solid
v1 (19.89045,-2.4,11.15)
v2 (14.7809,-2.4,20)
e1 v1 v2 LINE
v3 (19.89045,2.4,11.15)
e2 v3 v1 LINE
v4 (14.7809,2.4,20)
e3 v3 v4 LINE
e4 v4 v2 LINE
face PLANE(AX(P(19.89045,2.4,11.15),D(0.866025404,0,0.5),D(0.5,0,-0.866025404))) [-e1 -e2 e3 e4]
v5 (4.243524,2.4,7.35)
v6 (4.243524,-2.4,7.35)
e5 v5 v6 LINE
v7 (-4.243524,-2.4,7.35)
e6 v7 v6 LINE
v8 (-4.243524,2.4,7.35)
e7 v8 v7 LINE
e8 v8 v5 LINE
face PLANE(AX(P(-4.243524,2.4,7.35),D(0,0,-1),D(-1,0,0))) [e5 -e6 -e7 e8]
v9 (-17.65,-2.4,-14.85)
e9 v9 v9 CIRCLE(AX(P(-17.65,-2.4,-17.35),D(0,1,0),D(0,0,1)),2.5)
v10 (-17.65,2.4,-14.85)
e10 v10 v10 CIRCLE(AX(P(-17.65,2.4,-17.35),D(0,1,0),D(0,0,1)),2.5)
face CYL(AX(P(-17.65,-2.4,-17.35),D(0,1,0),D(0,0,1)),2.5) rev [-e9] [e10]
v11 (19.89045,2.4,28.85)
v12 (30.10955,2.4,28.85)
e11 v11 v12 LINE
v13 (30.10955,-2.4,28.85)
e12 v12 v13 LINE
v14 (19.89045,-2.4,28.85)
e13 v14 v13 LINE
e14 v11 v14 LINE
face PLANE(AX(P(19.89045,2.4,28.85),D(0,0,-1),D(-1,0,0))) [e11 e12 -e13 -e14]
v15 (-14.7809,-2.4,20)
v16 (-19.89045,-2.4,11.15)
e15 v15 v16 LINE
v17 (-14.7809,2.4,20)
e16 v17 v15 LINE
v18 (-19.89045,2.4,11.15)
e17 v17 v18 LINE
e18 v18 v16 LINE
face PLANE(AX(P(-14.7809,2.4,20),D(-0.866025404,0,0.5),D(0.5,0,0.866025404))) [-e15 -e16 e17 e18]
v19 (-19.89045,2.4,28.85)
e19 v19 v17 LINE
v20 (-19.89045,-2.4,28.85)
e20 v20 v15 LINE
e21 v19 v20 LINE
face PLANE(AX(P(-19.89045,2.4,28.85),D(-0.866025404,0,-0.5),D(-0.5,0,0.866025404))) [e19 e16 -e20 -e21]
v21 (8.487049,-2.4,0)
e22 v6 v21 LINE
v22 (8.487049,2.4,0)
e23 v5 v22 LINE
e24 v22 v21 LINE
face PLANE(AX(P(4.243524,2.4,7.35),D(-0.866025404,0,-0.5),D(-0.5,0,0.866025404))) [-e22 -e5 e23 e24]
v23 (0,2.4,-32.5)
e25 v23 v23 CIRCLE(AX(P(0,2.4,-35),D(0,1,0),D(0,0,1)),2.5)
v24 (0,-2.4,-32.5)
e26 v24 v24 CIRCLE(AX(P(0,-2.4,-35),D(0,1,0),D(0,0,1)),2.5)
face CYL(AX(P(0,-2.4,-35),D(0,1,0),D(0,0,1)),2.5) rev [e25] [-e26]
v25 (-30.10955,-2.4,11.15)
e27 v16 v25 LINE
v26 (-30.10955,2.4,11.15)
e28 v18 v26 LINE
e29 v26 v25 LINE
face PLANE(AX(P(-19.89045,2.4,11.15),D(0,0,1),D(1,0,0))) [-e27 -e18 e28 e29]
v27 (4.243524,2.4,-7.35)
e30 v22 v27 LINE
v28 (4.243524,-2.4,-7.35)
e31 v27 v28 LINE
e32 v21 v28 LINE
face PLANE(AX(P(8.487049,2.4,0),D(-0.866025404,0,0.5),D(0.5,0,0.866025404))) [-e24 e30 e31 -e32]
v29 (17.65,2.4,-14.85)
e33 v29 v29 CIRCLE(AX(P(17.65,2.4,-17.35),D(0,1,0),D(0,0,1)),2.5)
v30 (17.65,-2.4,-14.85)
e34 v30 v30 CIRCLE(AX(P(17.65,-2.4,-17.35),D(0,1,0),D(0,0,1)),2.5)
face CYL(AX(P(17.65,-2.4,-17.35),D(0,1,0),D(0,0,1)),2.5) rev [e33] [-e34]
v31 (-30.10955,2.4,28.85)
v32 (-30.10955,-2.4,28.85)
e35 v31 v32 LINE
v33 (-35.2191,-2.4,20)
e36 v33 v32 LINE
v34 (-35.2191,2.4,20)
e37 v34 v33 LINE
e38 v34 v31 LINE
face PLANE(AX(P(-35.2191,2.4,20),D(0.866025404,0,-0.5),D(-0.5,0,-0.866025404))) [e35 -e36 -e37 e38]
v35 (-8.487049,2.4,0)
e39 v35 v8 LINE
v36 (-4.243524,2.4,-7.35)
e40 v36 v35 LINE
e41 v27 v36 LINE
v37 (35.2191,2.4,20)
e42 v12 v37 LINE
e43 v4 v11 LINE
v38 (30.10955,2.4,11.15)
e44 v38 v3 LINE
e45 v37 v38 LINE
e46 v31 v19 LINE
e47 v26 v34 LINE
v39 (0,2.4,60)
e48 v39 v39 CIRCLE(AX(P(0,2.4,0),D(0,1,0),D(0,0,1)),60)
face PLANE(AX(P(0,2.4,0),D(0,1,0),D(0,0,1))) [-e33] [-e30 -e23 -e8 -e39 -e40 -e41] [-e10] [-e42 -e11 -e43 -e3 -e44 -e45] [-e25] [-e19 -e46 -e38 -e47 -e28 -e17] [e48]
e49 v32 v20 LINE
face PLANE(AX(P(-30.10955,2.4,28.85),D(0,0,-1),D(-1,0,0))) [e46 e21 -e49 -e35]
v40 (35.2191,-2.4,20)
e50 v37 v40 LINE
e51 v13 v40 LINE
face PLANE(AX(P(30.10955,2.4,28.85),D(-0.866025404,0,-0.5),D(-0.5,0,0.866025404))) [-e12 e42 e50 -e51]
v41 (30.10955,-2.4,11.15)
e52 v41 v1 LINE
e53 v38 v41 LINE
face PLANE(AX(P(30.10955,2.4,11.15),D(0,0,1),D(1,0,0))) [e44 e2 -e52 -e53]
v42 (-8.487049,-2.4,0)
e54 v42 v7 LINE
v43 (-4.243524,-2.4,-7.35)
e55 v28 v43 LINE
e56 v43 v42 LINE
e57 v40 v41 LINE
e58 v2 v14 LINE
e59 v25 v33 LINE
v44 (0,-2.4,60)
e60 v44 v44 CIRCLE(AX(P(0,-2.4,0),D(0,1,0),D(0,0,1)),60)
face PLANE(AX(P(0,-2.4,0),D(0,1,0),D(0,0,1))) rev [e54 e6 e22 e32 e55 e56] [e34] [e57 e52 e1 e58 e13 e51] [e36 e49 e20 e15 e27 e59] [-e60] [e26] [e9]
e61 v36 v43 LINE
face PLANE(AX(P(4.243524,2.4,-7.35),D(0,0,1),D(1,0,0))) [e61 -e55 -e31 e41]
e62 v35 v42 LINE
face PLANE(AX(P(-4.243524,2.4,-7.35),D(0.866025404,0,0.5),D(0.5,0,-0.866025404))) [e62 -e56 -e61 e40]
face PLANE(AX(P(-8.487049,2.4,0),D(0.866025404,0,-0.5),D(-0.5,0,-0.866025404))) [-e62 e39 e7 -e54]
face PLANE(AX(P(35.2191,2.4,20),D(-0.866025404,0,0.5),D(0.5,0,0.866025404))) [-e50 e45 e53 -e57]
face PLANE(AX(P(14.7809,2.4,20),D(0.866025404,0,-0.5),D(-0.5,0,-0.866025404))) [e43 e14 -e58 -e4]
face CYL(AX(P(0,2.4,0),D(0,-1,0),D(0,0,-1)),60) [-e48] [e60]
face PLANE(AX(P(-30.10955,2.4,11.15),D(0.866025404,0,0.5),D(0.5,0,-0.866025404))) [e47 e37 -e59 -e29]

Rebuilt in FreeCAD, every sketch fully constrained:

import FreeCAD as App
import Part
import Sketcher

V = App.Vector
Q = App.Units.Quantity

doc = App.newDocument("Part")
body = doc.addObject("PartDesign::Body", "Body")

sketch1 = body.newObject("Sketcher::SketchObject", "Sketch")
sketch1.AttachmentSupport = (doc.getObject("XZ_Plane"), [""])
sketch1.MapMode = "FlatFace"
sketch1.addGeometry(Part.Circle(V(0, 0, 0), V(0, 0, 1), 60), False)
sketch1.addGeometry(Part.LineSegment(V(4, -7, 0), V(8, 0, 0)), False)
sketch1.addGeometry(Part.LineSegment(V(8, 0, 0), V(4, 7, 0)), False)
sketch1.addGeometry(Part.LineSegment(V(4, 7, 0), V(-4, 7, 0)), False)
sketch1.addGeometry(Part.LineSegment(V(-4, 7, 0), V(-8, 0, 0)), False)
sketch1.addGeometry(Part.LineSegment(V(-8, 0, 0), V(-4, -7, 0)), False)
sketch1.addGeometry(Part.LineSegment(V(-4, -7, 0), V(4, -7, 0)), False)
sketch1.addGeometry(Part.LineSegment(V(-20, 11, 0), V(-15, 20, 0)), False)
sketch1.addGeometry(Part.LineSegment(V(-15, 20, 0), V(-20, 29, 0)), False)
sketch1.addGeometry(Part.LineSegment(V(-20, 29, 0), V(-30, 29, 0)), False)
sketch1.addGeometry(Part.LineSegment(V(-30, 29, 0), V(-35, 20, 0)), False)
sketch1.addGeometry(Part.LineSegment(V(-35, 20, 0), V(-30, 11, 0)), False)
sketch1.addGeometry(Part.LineSegment(V(-30, 11, 0), V(-20, 11, 0)), False)
sketch1.addGeometry(Part.LineSegment(V(30, 11, 0), V(35, 20, 0)), False)
sketch1.addGeometry(Part.LineSegment(V(35, 20, 0), V(30, 29, 0)), False)
sketch1.addGeometry(Part.LineSegment(V(30, 29, 0), V(20, 29, 0)), False)
sketch1.addGeometry(Part.LineSegment(V(20, 29, 0), V(15, 20, 0)), False)
sketch1.addGeometry(Part.LineSegment(V(15, 20, 0), V(20, 11, 0)), False)
sketch1.addGeometry(Part.LineSegment(V(20, 11, 0), V(30, 11, 0)), False)
sketch1.addConstraint(Sketcher.Constraint("Coincident", 1, 2, 2, 1))
sketch1.addConstraint(Sketcher.Constraint("Coincident", 2, 2, 3, 1))
sketch1.addConstraint(Sketcher.Constraint("Coincident", 3, 2, 4, 1))
sketch1.addConstraint(Sketcher.Constraint("Coincident", 4, 2, 5, 1))
sketch1.addConstraint(Sketcher.Constraint("Coincident", 5, 2, 6, 1))
sketch1.addConstraint(Sketcher.Constraint("Coincident", 6, 2, 1, 1))
sketch1.addConstraint(Sketcher.Constraint("Coincident", 7, 2, 8, 1))
sketch1.addConstraint(Sketcher.Constraint("Coincident", 8, 2, 9, 1))
sketch1.addConstraint(Sketcher.Constraint("Coincident", 9, 2, 10, 1))
sketch1.addConstraint(Sketcher.Constraint("Coincident", 10, 2, 11, 1))
sketch1.addConstraint(Sketcher.Constraint("Coincident", 11, 2, 12, 1))
sketch1.addConstraint(Sketcher.Constraint("Coincident", 12, 2, 7, 1))
sketch1.addConstraint(Sketcher.Constraint("Coincident", 13, 2, 14, 1))
sketch1.addConstraint(Sketcher.Constraint("Coincident", 14, 2, 15, 1))
sketch1.addConstraint(Sketcher.Constraint("Coincident", 15, 2, 16, 1))
sketch1.addConstraint(Sketcher.Constraint("Coincident", 16, 2, 17, 1))
sketch1.addConstraint(Sketcher.Constraint("Coincident", 17, 2, 18, 1))
sketch1.addConstraint(Sketcher.Constraint("Coincident", 18, 2, 13, 1))
sketch1.addConstraint(Sketcher.Constraint("Horizontal", 3))
sketch1.addConstraint(Sketcher.Constraint("Horizontal", 6))
sketch1.addConstraint(Sketcher.Constraint("Horizontal", 9))
sketch1.addConstraint(Sketcher.Constraint("Horizontal", 12))
sketch1.addConstraint(Sketcher.Constraint("Horizontal", 15))
sketch1.addConstraint(Sketcher.Constraint("Horizontal", 18))
sketch1.addConstraint(Sketcher.Constraint("Coincident", 0, 3, -1, 1))
sketch1.addConstraint(Sketcher.Constraint("Symmetric", 1, 2, 4, 2, -1, 1))
sketch1.addConstraint(Sketcher.Constraint("Symmetric", 2, 2, 5, 2, -1, 1))
sketch1.addConstraint(Sketcher.Constraint("Symmetric", 10, 2, 13, 2, -2))
sketch1.addConstraint(Sketcher.Constraint("Symmetric", 9, 2, 14, 2, -2))
sketch1.addConstraint(Sketcher.Constraint("Symmetric", 7, 2, 16, 2, -2))
sketch1.addConstraint(Sketcher.Constraint("Symmetric", 12, 2, 17, 2, -2))
sketch1.addConstraint(Sketcher.Constraint("PointOnObject", 1, 2, -1))
sketch1.addConstraint(Sketcher.Constraint("Parallel", 1, 4))
sketch1.addConstraint(Sketcher.Constraint("Parallel", 4, 7))
sketch1.addConstraint(Sketcher.Constraint("Parallel", 5, 8))
sketch1.addConstraint(Sketcher.Constraint("Parallel", 7, 10))
sketch1.addConstraint(Sketcher.Constraint("Parallel", 8, 11))
sketch1.addConstraint(Sketcher.Constraint("Parallel", 10, 13))
sketch1.addConstraint(Sketcher.Constraint("Parallel", 11, 14))
sketch1.addConstraint(Sketcher.Constraint("Parallel", 13, 16))
sketch1.addConstraint(Sketcher.Constraint("Horizontal", 7, 2, 10, 2))
sketch1.addConstraint(Sketcher.Constraint("Vertical", 9, 2, 11, 2))
sketch1.addConstraint(Sketcher.Constraint("Diameter", 0, 120.0))
sketch1.addConstraint(Sketcher.Constraint("Angle", 1, Q("60 deg")))
sketch1.addConstraint(Sketcher.Constraint("DistanceY", -1, 1, 7, 2, 20.0))
sketch1.addConstraint(Sketcher.Constraint("DistanceY", 5, 2, 3, 2, 14.7))
sketch1.addConstraint(Sketcher.Constraint("DistanceY", 3, 2, 8, 2, 21.5))
sketch1.addConstraint(Sketcher.Constraint("DistanceX", 9, 2, 9, 1, 10.2191))
sketch1.addConstraint(Sketcher.Constraint("DistanceX", 3, 2, 3, 1, 8.487049))
sketch1.addConstraint(Sketcher.Constraint("DistanceX", 7, 2, -1, 1, 14.7809))
pad1 = body.newObject("PartDesign::Pad", "Pad")
pad1.Profile = sketch1
pad1.Length = 4.8
pad1.Midplane = True

sketch2 = body.newObject("Sketcher::SketchObject", "Sketch001")
sketch2.AttachmentSupport = (doc.getObject("XZ_Plane"), [""])
sketch2.MapMode = "FlatFace"
sketch2.AttachmentOffset = App.Placement(V(0, 0, -2.4), App.Rotation())
sketch2.addGeometry(Part.Circle(V(0, -35, 0), V(0, 0, 1), 2.5), False)
sketch2.addGeometry(Part.Circle(V(17.6, -17.4, 0), V(0, 0, 1), 2.5), False)
sketch2.addGeometry(Part.Circle(V(-17.6, -17.4, 0), V(0, 0, 1), 2.5), False)
sketch2.addConstraint(Sketcher.Constraint("Equal", 0, 1))
sketch2.addConstraint(Sketcher.Constraint("Equal", 1, 2))
sketch2.addConstraint(Sketcher.Constraint("Symmetric", 1, 3, 2, 3, -2))
sketch2.addConstraint(Sketcher.Constraint("PointOnObject", 0, 3, -2))
sketch2.addConstraint(Sketcher.Constraint("Diameter", 0, 5.0))
sketch2.addConstraint(Sketcher.Constraint("DistanceY", 0, 3, -1, 1, 35.0))
sketch2.addConstraint(Sketcher.Constraint("DistanceX", 2, 3, 1, 3, 35.3))
sketch2.addConstraint(Sketcher.Constraint("DistanceY", 1, 3, -1, 1, 17.35))
pocket1 = body.newObject("PartDesign::Pocket", "Pocket")
pocket1.Profile = sketch2
pocket1.Type = "ThroughAll"
pocket1.Reversed = True

doc.recompute()
